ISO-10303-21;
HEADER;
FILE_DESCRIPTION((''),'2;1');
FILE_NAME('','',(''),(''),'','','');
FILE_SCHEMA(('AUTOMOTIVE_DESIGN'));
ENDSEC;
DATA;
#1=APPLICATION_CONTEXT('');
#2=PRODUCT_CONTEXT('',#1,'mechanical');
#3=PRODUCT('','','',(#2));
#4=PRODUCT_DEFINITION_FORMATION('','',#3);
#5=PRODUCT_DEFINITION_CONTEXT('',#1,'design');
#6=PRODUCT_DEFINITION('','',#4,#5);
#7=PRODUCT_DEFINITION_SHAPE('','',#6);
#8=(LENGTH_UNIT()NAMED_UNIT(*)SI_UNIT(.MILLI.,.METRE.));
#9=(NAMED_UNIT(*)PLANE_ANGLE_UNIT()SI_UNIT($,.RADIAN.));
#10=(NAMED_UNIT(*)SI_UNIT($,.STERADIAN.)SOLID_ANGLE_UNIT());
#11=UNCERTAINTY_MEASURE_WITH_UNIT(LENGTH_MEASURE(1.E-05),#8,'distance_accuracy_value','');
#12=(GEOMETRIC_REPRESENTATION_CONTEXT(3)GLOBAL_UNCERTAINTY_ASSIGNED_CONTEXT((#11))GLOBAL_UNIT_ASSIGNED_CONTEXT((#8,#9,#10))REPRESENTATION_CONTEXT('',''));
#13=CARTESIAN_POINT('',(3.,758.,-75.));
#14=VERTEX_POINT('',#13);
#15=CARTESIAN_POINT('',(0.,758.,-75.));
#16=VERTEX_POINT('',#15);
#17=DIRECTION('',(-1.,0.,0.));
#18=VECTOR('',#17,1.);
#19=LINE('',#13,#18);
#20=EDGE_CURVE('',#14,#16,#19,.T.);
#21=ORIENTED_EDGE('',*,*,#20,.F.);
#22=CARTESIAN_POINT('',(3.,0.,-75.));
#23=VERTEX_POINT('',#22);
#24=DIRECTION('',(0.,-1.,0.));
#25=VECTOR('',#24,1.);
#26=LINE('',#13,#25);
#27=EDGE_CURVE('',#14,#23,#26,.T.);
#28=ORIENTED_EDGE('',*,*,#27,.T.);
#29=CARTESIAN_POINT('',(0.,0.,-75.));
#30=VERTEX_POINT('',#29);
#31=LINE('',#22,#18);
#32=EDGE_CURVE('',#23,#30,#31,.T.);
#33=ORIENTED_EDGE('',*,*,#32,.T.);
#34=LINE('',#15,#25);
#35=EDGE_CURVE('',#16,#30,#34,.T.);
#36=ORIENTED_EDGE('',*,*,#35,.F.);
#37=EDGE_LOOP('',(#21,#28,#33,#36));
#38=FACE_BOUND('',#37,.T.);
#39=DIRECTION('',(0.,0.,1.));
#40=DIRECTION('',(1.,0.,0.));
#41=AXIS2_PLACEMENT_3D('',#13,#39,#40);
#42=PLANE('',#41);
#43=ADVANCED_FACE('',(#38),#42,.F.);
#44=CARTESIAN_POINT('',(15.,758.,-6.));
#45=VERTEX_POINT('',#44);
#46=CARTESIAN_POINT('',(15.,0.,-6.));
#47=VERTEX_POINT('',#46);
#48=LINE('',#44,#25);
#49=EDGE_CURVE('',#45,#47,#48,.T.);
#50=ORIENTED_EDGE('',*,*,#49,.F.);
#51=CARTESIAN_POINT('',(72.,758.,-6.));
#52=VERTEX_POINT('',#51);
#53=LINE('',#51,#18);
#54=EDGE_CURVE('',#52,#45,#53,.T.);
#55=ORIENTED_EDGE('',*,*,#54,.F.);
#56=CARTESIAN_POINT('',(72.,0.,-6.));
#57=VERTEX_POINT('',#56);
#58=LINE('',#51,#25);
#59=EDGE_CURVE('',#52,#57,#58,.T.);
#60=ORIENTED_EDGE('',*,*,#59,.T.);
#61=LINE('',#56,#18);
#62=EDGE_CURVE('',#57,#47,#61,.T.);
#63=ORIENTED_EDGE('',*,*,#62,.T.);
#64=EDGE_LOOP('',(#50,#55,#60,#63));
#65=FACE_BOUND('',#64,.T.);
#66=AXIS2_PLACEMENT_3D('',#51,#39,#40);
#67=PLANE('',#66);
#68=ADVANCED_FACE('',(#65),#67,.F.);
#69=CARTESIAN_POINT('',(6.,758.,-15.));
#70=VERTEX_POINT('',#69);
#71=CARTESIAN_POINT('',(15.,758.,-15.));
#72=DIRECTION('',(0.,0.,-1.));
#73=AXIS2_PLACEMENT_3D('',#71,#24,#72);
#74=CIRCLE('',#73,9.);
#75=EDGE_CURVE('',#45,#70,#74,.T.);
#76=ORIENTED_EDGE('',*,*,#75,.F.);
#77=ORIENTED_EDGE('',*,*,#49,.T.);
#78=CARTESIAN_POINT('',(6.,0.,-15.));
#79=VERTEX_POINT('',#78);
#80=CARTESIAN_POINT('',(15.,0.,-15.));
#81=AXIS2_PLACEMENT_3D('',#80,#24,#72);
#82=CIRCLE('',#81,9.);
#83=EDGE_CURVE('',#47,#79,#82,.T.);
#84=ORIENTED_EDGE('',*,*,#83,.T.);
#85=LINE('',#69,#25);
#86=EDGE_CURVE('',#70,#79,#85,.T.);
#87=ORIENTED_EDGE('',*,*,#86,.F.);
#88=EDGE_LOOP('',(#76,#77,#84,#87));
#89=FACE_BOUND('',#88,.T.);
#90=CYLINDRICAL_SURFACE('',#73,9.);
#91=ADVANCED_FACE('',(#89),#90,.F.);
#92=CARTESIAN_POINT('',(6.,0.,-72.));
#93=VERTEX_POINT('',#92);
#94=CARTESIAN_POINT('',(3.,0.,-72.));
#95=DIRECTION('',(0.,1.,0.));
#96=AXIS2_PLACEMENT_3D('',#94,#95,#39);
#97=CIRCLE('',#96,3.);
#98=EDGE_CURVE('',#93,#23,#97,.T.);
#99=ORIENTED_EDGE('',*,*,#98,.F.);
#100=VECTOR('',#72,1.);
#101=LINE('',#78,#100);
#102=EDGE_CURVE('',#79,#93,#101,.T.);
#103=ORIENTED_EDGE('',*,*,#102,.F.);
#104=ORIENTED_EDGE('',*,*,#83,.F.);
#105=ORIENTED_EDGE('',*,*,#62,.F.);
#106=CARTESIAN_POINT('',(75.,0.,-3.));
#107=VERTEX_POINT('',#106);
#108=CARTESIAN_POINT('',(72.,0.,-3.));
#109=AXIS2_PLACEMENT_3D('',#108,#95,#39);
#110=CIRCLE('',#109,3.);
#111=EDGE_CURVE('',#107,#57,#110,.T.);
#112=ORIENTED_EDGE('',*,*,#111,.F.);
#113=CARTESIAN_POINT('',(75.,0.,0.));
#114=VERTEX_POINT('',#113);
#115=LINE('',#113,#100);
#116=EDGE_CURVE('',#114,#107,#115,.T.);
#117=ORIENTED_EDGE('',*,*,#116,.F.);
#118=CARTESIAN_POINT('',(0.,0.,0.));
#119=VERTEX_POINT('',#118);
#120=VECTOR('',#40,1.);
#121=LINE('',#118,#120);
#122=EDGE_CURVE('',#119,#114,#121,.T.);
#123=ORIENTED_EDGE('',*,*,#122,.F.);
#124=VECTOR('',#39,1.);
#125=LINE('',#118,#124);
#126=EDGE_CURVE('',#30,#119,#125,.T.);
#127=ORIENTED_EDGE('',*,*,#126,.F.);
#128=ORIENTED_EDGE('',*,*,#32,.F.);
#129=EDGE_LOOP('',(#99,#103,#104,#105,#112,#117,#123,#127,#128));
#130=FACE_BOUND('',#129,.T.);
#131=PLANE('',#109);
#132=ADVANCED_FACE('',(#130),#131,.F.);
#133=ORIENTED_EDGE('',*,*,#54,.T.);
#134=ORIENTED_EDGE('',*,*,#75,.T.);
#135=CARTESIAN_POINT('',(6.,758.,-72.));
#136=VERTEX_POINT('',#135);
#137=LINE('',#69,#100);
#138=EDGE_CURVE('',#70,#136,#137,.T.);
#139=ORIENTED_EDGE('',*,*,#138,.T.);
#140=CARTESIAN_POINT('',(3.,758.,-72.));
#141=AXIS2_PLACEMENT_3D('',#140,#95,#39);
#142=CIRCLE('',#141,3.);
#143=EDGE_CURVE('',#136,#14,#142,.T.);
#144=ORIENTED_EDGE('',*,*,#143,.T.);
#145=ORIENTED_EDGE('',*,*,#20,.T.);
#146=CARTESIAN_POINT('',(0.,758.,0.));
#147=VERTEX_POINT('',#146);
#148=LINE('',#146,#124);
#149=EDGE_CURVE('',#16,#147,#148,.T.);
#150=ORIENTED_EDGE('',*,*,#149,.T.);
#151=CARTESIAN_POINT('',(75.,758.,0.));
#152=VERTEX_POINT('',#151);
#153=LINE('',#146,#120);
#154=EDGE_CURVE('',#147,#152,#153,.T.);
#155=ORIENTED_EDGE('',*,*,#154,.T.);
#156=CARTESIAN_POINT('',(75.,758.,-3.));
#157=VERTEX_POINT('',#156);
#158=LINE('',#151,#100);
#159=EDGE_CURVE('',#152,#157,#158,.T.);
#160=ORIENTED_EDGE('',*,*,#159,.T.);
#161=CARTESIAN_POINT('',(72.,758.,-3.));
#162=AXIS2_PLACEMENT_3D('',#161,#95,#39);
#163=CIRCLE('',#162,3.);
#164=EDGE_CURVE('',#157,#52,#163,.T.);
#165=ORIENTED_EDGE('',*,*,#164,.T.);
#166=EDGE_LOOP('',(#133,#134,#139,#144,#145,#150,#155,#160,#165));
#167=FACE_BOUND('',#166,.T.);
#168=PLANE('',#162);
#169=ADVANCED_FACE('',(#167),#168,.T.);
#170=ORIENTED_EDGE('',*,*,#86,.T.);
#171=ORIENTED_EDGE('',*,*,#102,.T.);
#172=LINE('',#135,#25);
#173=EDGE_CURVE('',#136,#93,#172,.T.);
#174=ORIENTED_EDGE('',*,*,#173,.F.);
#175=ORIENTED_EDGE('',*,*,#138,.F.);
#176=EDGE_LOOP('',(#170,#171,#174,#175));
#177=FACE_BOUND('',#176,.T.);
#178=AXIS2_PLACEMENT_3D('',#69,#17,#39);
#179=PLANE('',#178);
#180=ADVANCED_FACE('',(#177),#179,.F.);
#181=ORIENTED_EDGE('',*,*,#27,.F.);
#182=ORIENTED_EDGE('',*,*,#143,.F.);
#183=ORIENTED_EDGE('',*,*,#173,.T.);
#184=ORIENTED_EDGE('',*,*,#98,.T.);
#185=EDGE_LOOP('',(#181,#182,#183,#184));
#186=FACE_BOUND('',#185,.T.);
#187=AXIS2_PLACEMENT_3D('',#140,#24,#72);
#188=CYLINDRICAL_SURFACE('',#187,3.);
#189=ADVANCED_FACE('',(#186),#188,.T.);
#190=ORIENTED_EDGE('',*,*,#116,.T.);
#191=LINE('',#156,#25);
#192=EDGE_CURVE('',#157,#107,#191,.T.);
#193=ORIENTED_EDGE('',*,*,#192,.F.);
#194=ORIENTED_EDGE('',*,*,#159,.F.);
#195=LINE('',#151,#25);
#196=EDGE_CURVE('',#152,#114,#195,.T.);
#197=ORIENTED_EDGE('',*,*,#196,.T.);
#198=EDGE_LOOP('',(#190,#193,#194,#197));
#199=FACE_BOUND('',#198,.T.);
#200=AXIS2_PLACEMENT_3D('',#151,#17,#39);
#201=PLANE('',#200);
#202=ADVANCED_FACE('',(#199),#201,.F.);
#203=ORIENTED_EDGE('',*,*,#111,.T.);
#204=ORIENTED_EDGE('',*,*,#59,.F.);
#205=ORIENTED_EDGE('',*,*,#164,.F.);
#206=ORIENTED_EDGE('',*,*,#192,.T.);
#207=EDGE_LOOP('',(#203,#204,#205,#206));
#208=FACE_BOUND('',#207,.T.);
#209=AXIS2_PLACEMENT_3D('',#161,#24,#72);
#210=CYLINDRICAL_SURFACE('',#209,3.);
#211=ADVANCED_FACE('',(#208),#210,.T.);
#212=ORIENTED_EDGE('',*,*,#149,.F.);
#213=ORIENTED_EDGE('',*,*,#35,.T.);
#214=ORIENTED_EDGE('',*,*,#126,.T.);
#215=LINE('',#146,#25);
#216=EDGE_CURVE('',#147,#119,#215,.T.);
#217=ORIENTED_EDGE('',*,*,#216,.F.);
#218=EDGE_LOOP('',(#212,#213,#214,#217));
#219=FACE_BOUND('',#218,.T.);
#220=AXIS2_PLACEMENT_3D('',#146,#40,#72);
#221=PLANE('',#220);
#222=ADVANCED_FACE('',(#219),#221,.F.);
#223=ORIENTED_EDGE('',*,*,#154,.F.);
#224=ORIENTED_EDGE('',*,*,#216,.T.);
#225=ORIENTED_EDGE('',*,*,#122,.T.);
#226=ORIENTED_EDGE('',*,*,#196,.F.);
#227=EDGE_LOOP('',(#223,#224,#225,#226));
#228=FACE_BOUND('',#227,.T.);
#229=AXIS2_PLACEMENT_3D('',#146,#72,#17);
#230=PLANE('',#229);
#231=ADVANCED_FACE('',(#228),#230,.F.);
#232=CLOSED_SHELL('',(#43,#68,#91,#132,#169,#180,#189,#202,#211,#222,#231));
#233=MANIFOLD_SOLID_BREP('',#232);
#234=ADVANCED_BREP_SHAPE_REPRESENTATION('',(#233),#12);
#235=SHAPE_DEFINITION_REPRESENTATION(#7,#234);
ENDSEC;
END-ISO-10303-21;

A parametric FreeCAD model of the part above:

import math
import FreeCAD as App
import Part
import Sketcher

V = App.Vector

doc = App.newDocument("Part")
params = doc.addObject("Spreadsheet::Sheet", "Params")
for row, (alias, value) in enumerate([
    ("sketch1_radius", "3 mm"),
    ("sketch1_radius2", "9 mm"),
    ("sketch1_width", "75 mm"),
    ("sketch1_width2", "57 mm"),
    ("pad1_length", "758 mm"),
], start=1):
    params.set(f"A{row}", alias)
    params.set(f"B{row}", "=" + value)
    params.setAlias(f"B{row}", alias)

body = doc.addObject("PartDesign::Body", "Body")

# Sketch on XZ plane
sketch1 = body.newObject("Sketcher::SketchObject", "Sketch")
sketch1.AttachmentSupport = (doc.getObject("XZ_Plane"), [""])
sketch1.MapMode = "FlatFace"
sketch1.addGeometry(Part.LineSegment(V(0, -75, 0), V(0, 0, 0)), False)
sketch1.addGeometry(Part.LineSegment(V(0, 0, 0), V(75, 0, 0)), False)
sketch1.addGeometry(Part.LineSegment(V(75, 0, 0), V(75, -3, 0)), False)
sketch1.addGeometry(Part.ArcOfCircle(Part.Circle(V(72, -3, 0), V(0, 0, 1), 3), math.radians(-90), math.radians(0)), False)
sketch1.addGeometry(Part.LineSegment(V(72, -6, 0), V(15, -6, 0)), False)
sketch1.addGeometry(Part.ArcOfCircle(Part.Circle(V(15, -15, 0), V(0, 0, 1), 9), math.radians(90), math.radians(180)), False)
sketch1.addGeometry(Part.LineSegment(V(6, -15, 0), V(6, -72, 0)), False)
sketch1.addGeometry(Part.ArcOfCircle(Part.Circle(V(3, -72, 0), V(0, 0, 1), 3), math.radians(-90), math.radians(0)), False)
sketch1.addGeometry(Part.LineSegment(V(3, -75, 0), V(0, -75, 0)), False)
sketch1.addConstraint(Sketcher.Constraint("Coincident", 0, 2, 1, 1))
sketch1.addConstraint(Sketcher.Constraint("Coincident", 1, 2, 2, 1))
sketch1.addConstraint(Sketcher.Constraint("Tangent", 2, 2, 3, 2))
sketch1.addConstraint(Sketcher.Constraint("Tangent", 3, 1, 4, 1))
sketch1.addConstraint(Sketcher.Constraint("Tangent", 4, 2, 5, 1))
sketch1.addConstraint(Sketcher.Constraint("Tangent", 5, 2, 6, 1))
sketch1.addConstraint(Sketcher.Constraint("Tangent", 6, 2, 7, 2))
sketch1.addConstraint(Sketcher.Constraint("Tangent", 7, 1, 8, 1))
sketch1.addConstraint(Sketcher.Constraint("Coincident", 8, 2, 0, 1))
sketch1.addConstraint(Sketcher.Constraint("Vertical", 0))
sketch1.addConstraint(Sketcher.Constraint("Horizontal", 1))
sketch1.addConstraint(Sketcher.Constraint("Vertical", 2))
sketch1.addConstraint(Sketcher.Constraint("Horizontal", 4))
sketch1.addConstraint(Sketcher.Constraint("Vertical", 6))
sketch1.addConstraint(Sketcher.Constraint("Horizontal", 8))
sketch1.addConstraint(Sketcher.Constraint("Coincident", 0, 2, -1, 1))
sketch1.addConstraint(Sketcher.Constraint("Equal", 3, 7))
sketch1.addConstraint(Sketcher.Constraint("Equal", 1, 0))
sketch1.addConstraint(Sketcher.Constraint("Equal", 8, 2))
sketch1.addConstraint(Sketcher.Constraint("Radius", 3, 3.0))
sketch1.addConstraint(Sketcher.Constraint("Radius", 5, 9.0))
sketch1.addConstraint(Sketcher.Constraint("DistanceX", 1, 1, 1, 2, 75.0))
sketch1.addConstraint(Sketcher.Constraint("DistanceX", 4, 2, 4, 1, 57.0))
sketch1.setExpression("Constraints[19]", "Params.sketch1_radius")
sketch1.setExpression("Constraints[20]", "Params.sketch1_radius2")
sketch1.setExpression("Constraints[21]", "Params.sketch1_width")
sketch1.setExpression("Constraints[22]", "Params.sketch1_width2")
pad1 = body.newObject("PartDesign::Pad", "Pad")
pad1.Profile = sketch1
pad1.setExpression("Length", "Params.pad1_length")
pad1.Reversed = True

doc.recompute()
